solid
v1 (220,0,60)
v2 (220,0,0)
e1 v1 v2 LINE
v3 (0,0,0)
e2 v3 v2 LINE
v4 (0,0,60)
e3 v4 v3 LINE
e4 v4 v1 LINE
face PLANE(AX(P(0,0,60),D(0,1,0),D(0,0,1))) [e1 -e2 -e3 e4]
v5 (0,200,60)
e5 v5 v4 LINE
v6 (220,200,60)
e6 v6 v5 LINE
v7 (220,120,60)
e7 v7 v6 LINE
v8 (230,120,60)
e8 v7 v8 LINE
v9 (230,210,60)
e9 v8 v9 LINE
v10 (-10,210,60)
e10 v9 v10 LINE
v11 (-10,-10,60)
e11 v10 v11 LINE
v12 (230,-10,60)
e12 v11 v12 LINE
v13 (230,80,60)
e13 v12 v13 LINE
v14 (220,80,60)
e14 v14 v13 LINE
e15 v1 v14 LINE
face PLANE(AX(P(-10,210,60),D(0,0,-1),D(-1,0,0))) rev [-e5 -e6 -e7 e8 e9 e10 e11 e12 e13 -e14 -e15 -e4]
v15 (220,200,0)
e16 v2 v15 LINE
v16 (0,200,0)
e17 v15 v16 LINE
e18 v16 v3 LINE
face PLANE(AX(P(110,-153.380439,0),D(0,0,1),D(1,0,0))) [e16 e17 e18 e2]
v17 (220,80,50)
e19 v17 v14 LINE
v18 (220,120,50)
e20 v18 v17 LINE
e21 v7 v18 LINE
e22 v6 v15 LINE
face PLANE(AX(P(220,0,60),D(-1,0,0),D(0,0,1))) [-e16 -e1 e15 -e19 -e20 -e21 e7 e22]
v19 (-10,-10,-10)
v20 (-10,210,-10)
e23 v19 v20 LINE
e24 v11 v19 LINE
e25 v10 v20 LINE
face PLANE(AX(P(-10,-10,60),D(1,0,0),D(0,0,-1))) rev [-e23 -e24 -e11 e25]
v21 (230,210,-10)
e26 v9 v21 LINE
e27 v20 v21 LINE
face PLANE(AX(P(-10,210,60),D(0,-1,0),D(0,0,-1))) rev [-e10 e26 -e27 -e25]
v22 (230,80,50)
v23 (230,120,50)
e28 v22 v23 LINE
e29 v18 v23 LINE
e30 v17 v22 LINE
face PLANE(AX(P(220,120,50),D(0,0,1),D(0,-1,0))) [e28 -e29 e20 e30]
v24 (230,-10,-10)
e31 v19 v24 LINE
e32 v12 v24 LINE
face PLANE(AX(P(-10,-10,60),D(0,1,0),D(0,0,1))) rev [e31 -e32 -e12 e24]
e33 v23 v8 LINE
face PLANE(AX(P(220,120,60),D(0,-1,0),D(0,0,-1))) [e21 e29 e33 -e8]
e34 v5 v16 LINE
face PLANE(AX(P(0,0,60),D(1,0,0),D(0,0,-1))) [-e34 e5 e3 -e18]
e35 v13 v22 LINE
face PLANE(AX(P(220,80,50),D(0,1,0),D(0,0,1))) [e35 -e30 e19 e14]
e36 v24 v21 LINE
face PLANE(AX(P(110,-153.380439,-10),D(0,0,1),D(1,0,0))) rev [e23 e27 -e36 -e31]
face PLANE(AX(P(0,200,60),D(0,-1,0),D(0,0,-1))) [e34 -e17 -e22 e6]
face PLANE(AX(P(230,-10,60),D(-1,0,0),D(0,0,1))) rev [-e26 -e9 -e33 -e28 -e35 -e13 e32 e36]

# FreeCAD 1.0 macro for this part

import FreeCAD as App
import Part
import Sketcher

doc = App.newDocument("Part")
body = doc.addObject("PartDesign::Body", "Body")

sketch1 = doc.addObject("Sketcher::SketchObject", "Sketch")
body.addObject(sketch1)
sketch1.AttachmentSupport = (doc.XY_Plane, [""])
sketch1.MapMode = "FlatFace"
sketch1.addGeometry([
    Part.LineSegment(App.Vector(-10, 210, 0), App.Vector(-10, -10, 0)),
    Part.LineSegment(App.Vector(-10, -10, 0), App.Vector(230, -10, 0)),
    Part.LineSegment(App.Vector(230, -10, 0), App.Vector(230, 210, 0)),
    Part.LineSegment(App.Vector(230, 210, 0), App.Vector(-10, 210, 0)),
    Part.LineSegment(App.Vector(220, 0, 0), App.Vector(0, 0, 0)),
    Part.LineSegment(App.Vector(0, 0, 0), App.Vector(0, 200, 0)),
    Part.LineSegment(App.Vector(0, 200, 0), App.Vector(220, 200, 0)),
    Part.LineSegment(App.Vector(220, 200, 0), App.Vector(220, 0, 0)),
], False)
sketch1.addConstraint([
    Sketcher.Constraint("Coincident", 0, 2, 1, 1),
    Sketcher.Constraint("Coincident", 1, 2, 2, 1),
    Sketcher.Constraint("Coincident", 2, 2, 3, 1),
    Sketcher.Constraint("Coincident", 3, 2, 0, 1),
    Sketcher.Constraint("Coincident", 4, 2, 5, 1),
    Sketcher.Constraint("Coincident", 5, 2, 6, 1),
    Sketcher.Constraint("Coincident", 6, 2, 7, 1),
    Sketcher.Constraint("Coincident", 7, 2, 4, 1),
    Sketcher.Constraint("Vertical", 0),
    Sketcher.Constraint("Horizontal", 1),
    Sketcher.Constraint("Vertical", 2),
    Sketcher.Constraint("Horizontal", 3),
    Sketcher.Constraint("Horizontal", 4),
    Sketcher.Constraint("Vertical", 5),
    Sketcher.Constraint("Horizontal", 6),
    Sketcher.Constraint("Vertical", 7),
    Sketcher.Constraint("Coincident", 4, 2, -1, 1),
    Sketcher.Constraint("Equal", 6, 0),
    Sketcher.Constraint("DistanceX", 1, 1, 1, 2, 240.0),
    Sketcher.Constraint("DistanceX", 4, 2, 4, 1, 220.0),
    Sketcher.Constraint("DistanceY", 5, 1, 5, 2, 200.0),
    Sketcher.Constraint("DistanceX", 0, 2, -1, 1, 10.0),
    Sketcher.Constraint("DistanceY", 0, 2, -1, 1, 10.0),
])
pad1 = doc.addObject("PartDesign::Pad", "Pad")
body.addObject(pad1)
pad1.Profile = sketch1
pad1.Length = 60

sketch2 = doc.addObject("Sketcher::SketchObject", "Sketch001")
body.addObject(sketch2)
sketch2.AttachmentSupport = (doc.XY_Plane, [""])
sketch2.MapMode = "FlatFace"
sketch2.addGeometry([
    Part.LineSegment(App.Vector(-10, 210, 0), App.Vector(-10, -10, 0)),
    Part.LineSegment(App.Vector(-10, -10, 0), App.Vector(230, -10, 0)),
    Part.LineSegment(App.Vector(230, -10, 0), App.Vector(230, 210, 0)),
    Part.LineSegment(App.Vector(230, 210, 0), App.Vector(-10, 210, 0)),
], False)
sketch2.addConstraint([
    Sketcher.Constraint("Coincident", 0, 2, 1, 1),
    Sketcher.Constraint("Coincident", 1, 2, 2, 1),
    Sketcher.Constraint("Coincident", 2, 2, 3, 1),
    Sketcher.Constraint("Coincident", 3, 2, 0, 1),
    Sketcher.Constraint("Vertical", 0),
    Sketcher.Constraint("Horizontal", 1),
    Sketcher.Constraint("Vertical", 2),
    Sketcher.Constraint("Horizontal", 3),
    Sketcher.Constraint("DistanceX", 1, 1, 1, 2, 240.0),
    Sketcher.Constraint("DistanceY", 0, 2, 0, 1, 220.0),
    Sketcher.Constraint("DistanceX", 0, 2, -1, 1, 10.0),
    Sketcher.Constraint("DistanceY", 0, 2, -1, 1, 10.0),
])
pad2 = doc.addObject("PartDesign::Pad", "Pad001")
body.addObject(pad2)
pad2.Profile = sketch2
pad2.Length = 10
pad2.Reversed = True

sketch3 = doc.addObject("Sketcher::SketchObject", "Sketch002")
body.addObject(sketch3)
sketch3.AttachmentSupport = (doc.YZ_Plane, [""])
sketch3.MapMode = "FlatFace"
sketch3.AttachmentOffset = App.Placement(App.Vector(0, 0, 220), App.Rotation())
sketch3.addGeometry([
    Part.LineSegment(App.Vector(120, 50, 0), App.Vector(80, 50, 0)),
    Part.LineSegment(App.Vector(80, 50, 0), App.Vector(80, 976, 0)),
    Part.LineSegment(App.Vector(80, 976, 0), App.Vector(120, 976, 0)),
    Part.LineSegment(App.Vector(120, 976, 0), App.Vector(120, 50, 0)),
], False)
sketch3.addConstraint([
    Sketcher.Constraint("Coincident", 0, 2, 1, 1),
    Sketcher.Constraint("Coincident", 1, 2, 2, 1),
    Sketcher.Constraint("Coincident", 2, 2, 3, 1),
    Sketcher.Constraint("Coincident", 3, 2, 0, 1),
    Sketcher.Constraint("Horizontal", 0),
    Sketcher.Constraint("Vertical", 1),
    Sketcher.Constraint("Horizontal", 2),
    Sketcher.Constraint("Vertical", 3),
    Sketcher.Constraint("DistanceX", 0, 2, 0, 1, 40.0),
    Sketcher.Constraint("DistanceX", -1, 1, 0, 2, 80.0),
    Sketcher.Constraint("DistanceY", -1, 1, 0, 2, 50.0),
    Sketcher.Constraint("DistanceY", 1, 1, 1, 2, 925.889384),
])
pocket1 = doc.addObject("PartDesign::Pocket", "Pocket")
body.addObject(pocket1)
pocket1.Profile = sketch3
pocket1.Type = "ThroughAll"
pocket1.Reversed = True

doc.recompute()
